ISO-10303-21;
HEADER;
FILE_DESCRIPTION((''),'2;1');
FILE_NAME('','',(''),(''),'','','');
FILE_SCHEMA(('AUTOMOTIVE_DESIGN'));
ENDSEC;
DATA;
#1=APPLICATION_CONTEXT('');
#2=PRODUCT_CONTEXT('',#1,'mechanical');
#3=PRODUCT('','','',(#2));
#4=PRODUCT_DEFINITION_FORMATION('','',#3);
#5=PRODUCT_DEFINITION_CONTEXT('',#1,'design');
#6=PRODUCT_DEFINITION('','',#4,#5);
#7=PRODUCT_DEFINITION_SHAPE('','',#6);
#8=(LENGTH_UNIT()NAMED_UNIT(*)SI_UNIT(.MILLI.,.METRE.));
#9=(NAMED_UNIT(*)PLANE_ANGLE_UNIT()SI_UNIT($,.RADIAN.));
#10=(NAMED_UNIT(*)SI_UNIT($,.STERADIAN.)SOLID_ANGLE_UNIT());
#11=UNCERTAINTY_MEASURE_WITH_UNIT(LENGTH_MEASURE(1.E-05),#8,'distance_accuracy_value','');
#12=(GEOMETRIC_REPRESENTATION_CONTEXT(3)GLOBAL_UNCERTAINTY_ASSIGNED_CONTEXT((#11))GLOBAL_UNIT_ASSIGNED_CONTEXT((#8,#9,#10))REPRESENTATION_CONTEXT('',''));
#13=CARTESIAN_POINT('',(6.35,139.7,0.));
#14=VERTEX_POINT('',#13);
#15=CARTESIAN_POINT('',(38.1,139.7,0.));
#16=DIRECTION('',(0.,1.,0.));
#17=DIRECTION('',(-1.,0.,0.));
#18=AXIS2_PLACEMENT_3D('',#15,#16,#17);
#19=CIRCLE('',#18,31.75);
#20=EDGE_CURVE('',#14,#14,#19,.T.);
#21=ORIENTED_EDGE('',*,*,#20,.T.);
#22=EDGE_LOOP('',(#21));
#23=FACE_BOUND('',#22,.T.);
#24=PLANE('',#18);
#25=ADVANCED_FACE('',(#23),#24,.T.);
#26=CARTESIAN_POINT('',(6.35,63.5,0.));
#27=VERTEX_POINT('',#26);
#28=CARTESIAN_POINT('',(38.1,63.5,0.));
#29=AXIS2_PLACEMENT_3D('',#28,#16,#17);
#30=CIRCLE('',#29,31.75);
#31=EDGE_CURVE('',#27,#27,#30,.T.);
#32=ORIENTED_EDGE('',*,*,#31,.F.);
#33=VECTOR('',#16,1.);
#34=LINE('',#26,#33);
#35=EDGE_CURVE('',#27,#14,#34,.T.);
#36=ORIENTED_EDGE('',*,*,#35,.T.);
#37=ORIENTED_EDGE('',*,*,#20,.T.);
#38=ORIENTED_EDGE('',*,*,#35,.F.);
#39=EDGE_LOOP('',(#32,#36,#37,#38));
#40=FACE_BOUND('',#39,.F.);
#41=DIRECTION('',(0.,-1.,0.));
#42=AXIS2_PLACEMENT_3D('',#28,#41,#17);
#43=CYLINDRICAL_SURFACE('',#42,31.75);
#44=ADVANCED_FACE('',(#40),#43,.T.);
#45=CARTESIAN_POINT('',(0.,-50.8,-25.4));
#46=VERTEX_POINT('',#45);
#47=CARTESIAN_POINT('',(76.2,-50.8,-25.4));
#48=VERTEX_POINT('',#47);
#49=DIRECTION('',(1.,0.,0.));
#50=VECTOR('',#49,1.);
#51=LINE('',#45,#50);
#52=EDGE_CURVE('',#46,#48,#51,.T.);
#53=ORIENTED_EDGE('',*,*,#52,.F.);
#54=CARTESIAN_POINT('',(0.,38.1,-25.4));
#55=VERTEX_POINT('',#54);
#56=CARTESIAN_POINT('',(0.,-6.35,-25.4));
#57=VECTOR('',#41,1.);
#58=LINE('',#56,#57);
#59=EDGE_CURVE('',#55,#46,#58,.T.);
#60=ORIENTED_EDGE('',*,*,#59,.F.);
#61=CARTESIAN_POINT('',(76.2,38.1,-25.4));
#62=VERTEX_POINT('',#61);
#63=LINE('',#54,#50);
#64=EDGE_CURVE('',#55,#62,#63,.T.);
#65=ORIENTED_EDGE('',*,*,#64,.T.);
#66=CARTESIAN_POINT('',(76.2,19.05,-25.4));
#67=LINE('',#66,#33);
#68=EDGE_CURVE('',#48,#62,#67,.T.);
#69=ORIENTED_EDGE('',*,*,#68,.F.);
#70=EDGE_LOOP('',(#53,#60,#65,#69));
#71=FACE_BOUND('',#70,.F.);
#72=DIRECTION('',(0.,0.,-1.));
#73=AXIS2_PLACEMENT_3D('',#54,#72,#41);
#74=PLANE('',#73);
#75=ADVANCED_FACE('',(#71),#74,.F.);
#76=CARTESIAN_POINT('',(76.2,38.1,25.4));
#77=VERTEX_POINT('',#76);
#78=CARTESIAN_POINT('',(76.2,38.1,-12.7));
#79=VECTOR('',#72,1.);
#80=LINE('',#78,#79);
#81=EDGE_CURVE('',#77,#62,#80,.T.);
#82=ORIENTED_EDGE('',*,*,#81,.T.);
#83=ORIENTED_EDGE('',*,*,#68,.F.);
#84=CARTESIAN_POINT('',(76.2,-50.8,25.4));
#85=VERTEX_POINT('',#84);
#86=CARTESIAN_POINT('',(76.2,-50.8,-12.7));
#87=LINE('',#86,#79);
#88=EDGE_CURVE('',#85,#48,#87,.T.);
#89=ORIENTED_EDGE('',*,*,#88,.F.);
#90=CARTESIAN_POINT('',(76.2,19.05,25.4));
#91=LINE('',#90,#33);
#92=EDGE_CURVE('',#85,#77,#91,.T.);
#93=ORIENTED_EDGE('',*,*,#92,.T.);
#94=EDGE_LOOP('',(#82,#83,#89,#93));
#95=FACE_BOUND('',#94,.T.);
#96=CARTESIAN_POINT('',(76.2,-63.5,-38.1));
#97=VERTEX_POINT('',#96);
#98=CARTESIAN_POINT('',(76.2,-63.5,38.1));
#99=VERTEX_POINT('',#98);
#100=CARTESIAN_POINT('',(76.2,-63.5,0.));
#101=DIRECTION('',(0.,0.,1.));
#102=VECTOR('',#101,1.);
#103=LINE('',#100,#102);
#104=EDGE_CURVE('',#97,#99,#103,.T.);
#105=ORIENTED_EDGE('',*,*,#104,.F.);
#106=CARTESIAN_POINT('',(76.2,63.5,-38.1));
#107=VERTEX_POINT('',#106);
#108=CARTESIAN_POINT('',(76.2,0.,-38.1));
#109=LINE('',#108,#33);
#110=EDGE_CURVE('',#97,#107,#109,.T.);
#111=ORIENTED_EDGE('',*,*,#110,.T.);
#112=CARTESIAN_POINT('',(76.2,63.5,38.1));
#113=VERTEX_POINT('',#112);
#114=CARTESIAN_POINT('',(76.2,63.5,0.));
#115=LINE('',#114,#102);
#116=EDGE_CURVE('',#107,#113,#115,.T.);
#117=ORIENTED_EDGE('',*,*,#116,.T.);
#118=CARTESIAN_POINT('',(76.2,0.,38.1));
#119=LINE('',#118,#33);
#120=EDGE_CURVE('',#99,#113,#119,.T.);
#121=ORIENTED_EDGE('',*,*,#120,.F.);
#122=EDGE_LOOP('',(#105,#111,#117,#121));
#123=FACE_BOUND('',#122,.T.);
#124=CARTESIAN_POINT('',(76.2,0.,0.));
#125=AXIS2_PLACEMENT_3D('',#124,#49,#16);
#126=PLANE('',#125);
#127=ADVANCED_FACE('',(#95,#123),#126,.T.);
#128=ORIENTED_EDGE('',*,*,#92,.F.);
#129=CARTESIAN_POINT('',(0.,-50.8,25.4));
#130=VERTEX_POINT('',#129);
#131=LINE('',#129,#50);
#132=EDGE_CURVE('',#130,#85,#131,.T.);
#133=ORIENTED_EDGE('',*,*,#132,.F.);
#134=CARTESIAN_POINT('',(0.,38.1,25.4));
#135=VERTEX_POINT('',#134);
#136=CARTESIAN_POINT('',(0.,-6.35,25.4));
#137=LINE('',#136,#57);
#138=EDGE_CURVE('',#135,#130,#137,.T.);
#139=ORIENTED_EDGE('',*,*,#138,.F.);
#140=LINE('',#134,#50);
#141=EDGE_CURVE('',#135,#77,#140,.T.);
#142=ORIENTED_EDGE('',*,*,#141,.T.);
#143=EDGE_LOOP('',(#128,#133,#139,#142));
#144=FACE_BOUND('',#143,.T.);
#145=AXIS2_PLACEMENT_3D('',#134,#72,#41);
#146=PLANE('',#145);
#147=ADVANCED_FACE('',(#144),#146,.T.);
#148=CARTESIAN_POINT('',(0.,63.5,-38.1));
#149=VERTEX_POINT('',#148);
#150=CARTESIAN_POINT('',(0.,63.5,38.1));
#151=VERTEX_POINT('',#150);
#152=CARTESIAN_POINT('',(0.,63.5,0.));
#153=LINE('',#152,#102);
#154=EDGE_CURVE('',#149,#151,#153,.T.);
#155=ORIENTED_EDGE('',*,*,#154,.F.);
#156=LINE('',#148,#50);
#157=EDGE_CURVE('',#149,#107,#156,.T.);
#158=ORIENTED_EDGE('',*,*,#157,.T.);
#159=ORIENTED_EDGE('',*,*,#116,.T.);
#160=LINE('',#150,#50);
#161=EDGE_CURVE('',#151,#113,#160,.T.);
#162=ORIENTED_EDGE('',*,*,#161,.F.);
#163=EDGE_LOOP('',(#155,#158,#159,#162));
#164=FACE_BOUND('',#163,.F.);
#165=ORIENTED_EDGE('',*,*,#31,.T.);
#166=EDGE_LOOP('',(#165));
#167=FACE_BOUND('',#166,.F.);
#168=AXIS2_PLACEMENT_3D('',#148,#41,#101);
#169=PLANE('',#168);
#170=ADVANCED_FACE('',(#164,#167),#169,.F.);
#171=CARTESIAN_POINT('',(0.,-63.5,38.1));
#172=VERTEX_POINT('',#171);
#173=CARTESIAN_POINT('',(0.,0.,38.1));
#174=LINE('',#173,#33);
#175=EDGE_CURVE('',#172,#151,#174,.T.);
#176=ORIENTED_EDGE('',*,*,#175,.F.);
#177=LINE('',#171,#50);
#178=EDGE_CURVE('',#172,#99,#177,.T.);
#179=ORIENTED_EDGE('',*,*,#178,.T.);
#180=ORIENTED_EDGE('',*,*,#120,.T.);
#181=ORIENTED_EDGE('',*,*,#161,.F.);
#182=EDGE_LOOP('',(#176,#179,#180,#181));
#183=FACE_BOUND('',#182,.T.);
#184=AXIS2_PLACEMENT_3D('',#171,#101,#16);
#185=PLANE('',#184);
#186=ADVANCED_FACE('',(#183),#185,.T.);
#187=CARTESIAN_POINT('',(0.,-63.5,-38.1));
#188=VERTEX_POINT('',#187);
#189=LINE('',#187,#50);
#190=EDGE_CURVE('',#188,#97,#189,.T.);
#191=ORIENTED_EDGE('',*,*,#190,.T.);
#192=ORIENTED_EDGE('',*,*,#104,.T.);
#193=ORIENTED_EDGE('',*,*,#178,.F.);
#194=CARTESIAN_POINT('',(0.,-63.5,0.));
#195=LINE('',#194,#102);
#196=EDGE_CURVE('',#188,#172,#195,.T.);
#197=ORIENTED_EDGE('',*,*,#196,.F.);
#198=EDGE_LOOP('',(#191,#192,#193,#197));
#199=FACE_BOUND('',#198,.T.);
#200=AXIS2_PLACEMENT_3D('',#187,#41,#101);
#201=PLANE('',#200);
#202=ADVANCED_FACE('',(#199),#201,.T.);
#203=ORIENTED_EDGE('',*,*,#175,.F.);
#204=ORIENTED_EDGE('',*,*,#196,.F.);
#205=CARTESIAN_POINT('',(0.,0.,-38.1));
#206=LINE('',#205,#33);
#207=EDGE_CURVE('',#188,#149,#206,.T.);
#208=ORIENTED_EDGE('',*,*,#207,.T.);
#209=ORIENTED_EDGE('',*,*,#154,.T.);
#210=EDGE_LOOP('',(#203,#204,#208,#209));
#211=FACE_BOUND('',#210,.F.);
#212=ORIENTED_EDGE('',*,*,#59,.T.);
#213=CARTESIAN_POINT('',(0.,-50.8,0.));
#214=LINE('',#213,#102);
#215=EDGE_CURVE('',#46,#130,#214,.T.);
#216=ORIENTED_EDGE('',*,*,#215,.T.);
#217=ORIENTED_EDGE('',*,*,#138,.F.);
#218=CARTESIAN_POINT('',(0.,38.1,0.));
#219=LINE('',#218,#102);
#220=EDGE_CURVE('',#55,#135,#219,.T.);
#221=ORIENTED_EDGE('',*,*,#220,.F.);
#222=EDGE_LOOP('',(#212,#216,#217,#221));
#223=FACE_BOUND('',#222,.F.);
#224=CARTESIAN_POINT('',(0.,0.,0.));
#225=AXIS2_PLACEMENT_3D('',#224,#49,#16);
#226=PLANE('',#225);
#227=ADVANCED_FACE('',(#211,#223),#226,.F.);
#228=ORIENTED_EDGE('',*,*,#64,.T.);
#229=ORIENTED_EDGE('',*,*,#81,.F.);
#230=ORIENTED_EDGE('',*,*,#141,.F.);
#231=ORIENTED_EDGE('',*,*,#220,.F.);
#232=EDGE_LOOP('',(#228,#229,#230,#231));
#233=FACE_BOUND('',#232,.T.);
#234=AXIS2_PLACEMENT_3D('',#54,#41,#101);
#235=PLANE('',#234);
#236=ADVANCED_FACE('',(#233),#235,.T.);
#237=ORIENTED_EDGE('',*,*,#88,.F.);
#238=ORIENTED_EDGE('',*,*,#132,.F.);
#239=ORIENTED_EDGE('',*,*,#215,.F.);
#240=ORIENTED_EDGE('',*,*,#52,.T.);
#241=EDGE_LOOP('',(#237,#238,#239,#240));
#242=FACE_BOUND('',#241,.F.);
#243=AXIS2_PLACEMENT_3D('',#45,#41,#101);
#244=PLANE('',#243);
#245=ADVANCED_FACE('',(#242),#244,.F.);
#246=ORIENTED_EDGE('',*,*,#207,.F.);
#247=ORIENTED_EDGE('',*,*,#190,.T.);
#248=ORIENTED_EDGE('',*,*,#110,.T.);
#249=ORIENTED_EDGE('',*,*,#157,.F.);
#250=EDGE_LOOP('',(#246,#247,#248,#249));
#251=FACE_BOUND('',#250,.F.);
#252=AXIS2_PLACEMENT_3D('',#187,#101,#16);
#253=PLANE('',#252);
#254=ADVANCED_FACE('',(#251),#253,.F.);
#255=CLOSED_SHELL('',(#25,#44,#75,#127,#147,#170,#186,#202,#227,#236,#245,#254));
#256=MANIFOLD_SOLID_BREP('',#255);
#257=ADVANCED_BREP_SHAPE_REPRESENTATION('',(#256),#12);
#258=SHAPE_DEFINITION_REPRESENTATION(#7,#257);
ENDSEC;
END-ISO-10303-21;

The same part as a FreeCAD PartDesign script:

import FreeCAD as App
import Part
import Sketcher
Q = App.Units.Quantity

doc = App.newDocument("Part")
params = doc.addObject("Spreadsheet::Sheet", "Params")
for row, (alias, value) in enumerate([
    ("sketch1_width", "5 in"),
    ("sketch1_height", "3 in"),
    ("pad1_length", "3 in"),
    ("sketch2_diameter", "2.5 in"),
    ("pad2_length", "3 in"),
    ("sketch3_height", "2 in"),
    ("sketch3_width", "3.5 in"),
], start=1):
    params.set(f"A{row}", alias)
    params.set(f"B{row}", "=" + value)
    params.setAlias(f"B{row}", alias)

body = doc.addObject("PartDesign::Body", "Body")

sketch1 = doc.addObject("Sketcher::SketchObject", "Sketch")
body.addObject(sketch1)
sketch1.AttachmentSupport = (doc.YZ_Plane, [""])
sketch1.MapMode = "FlatFace"
sketch1.addGeometry(Part.LineSegment(App.Vector(-64, 38, 0), App.Vector(-64, -38, 0)), False)
sketch1.addGeometry(Part.LineSegment(App.Vector(-64, -38, 0), App.Vector(64, -38, 0)), False)
sketch1.addGeometry(Part.LineSegment(App.Vector(64, -38, 0), App.Vector(64, 38, 0)), False)
sketch1.addGeometry(Part.LineSegment(App.Vector(64, 38, 0), App.Vector(-64, 38, 0)), False)
sketch1.addConstraint(Sketcher.Constraint("Coincident", 0, 2, 1, 1))
sketch1.addConstraint(Sketcher.Constraint("Coincident", 1, 2, 2, 1))
sketch1.addConstraint(Sketcher.Constraint("Coincident", 2, 2, 3, 1))
sketch1.addConstraint(Sketcher.Constraint("Coincident", 3, 2, 0, 1))
sketch1.addConstraint(Sketcher.Constraint("Vertical", 0))
sketch1.addConstraint(Sketcher.Constraint("Horizontal", 1))
sketch1.addConstraint(Sketcher.Constraint("Vertical", 2))
sketch1.addConstraint(Sketcher.Constraint("Horizontal", 3))
sketch1.addConstraint(Sketcher.Constraint("Symmetric", 0, 2, 2, 2, -1, 1))
sketch1.addConstraint(Sketcher.Constraint("DistanceX", 1, 1, 1, 2, Q("5 in")))
sketch1.addConstraint(Sketcher.Constraint("DistanceY", 0, 2, 0, 1, Q("3 in")))
sketch1.setExpression("Constraints[9]", "Params.sketch1_width")
sketch1.setExpression("Constraints[10]", "Params.sketch1_height")
pad1 = doc.addObject("PartDesign::Pad", "Pad")
body.addObject(pad1)
pad1.Profile = sketch1
pad1.setExpression("Length", "Params.pad1_length")

sketch2 = doc.addObject("Sketcher::SketchObject", "Sketch001")
body.addObject(sketch2)
sketch2.AttachmentSupport = (doc.XZ_Plane, [""])
sketch2.MapMode = "FlatFace"
sketch2.AttachmentOffset = App.Placement(App.Vector(0, 0, -2.5 * 25.4), App.Rotation())
sketch2.addGeometry(Part.Circle(App.Vector(38, 0, 0), App.Vector(0, 0, 1), 32), False)
sketch2.addConstraint(Sketcher.Constraint("PointOnObject", 0, 3, -1))
sketch2.addConstraint(Sketcher.Constraint("Diameter", 0, Q("2.5 in")))
sketch2.addConstraint(Sketcher.Constraint("DistanceX", -1, 1, 0, 3, Q("1.5 in")))
sketch2.setExpression("Constraints[1]", "Params.sketch2_diameter")
pad2 = doc.addObject("PartDesign::Pad", "Pad001")
body.addObject(pad2)
pad2.Profile = sketch2
pad2.setExpression("Length", "Params.pad2_length")
pad2.Reversed = True

sketch3 = doc.addObject("Sketcher::SketchObject", "Sketch002")
body.addObject(sketch3)
sketch3.AttachmentSupport = (doc.YZ_Plane, [""])
sketch3.MapMode = "FlatFace"
sketch3.addGeometry(Part.LineSegment(App.Vector(38, 25, 0), App.Vector(38, -25, 0)), False)
sketch3.addGeometry(Part.LineSegment(App.Vector(38, -25, 0), App.Vector(-51, -25, 0)), False)
sketch3.addGeometry(Part.LineSegment(App.Vector(-51, -25, 0), App.Vector(-51, 25, 0)), False)
sketch3.addGeometry(Part.LineSegment(App.Vector(-51, 25, 0), App.Vector(38, 25, 0)), False)
sketch3.addConstraint(Sketcher.Constraint("Coincident", 0, 2, 1, 1))
sketch3.addConstraint(Sketcher.Constraint("Coincident", 1, 2, 2, 1))
sketch3.addConstraint(Sketcher.Constraint("Coincident", 2, 2, 3, 1))
sketch3.addConstraint(Sketcher.Constraint("Coincident", 3, 2, 0, 1))
sketch3.addConstraint(Sketcher.Constraint("Vertical", 0))
sketch3.addConstraint(Sketcher.Constraint("Horizontal", 1))
sketch3.addConstraint(Sketcher.Constraint("Vertical", 2))
sketch3.addConstraint(Sketcher.Constraint("Horizontal", 3))
sketch3.addConstraint(Sketcher.Constraint("DistanceY", 0, 2, 0, 1, Q("2 in")))
sketch3.addConstraint(Sketcher.Constraint("DistanceX", 1, 2, 1, 1, Q("3.5 in")))
sketch3.addConstraint(Sketcher.Constraint("DistanceY", 0, 2, -1, 1, Q("1 in")))
sketch3.addConstraint(Sketcher.Constraint("DistanceX", 1, 2, -1, 1, Q("2 in")))
sketch3.setExpression("Constraints[8]", "Params.sketch3_height")
sketch3.setExpression("Constraints[9]", "Params.sketch3_width")
pocket1 = doc.addObject("PartDesign::Pocket", "Pocket")
body.addObject(pocket1)
pocket1.Profile = sketch3
pocket1.Type = "ThroughAll"
pocket1.Reversed = True

doc.recompute()
